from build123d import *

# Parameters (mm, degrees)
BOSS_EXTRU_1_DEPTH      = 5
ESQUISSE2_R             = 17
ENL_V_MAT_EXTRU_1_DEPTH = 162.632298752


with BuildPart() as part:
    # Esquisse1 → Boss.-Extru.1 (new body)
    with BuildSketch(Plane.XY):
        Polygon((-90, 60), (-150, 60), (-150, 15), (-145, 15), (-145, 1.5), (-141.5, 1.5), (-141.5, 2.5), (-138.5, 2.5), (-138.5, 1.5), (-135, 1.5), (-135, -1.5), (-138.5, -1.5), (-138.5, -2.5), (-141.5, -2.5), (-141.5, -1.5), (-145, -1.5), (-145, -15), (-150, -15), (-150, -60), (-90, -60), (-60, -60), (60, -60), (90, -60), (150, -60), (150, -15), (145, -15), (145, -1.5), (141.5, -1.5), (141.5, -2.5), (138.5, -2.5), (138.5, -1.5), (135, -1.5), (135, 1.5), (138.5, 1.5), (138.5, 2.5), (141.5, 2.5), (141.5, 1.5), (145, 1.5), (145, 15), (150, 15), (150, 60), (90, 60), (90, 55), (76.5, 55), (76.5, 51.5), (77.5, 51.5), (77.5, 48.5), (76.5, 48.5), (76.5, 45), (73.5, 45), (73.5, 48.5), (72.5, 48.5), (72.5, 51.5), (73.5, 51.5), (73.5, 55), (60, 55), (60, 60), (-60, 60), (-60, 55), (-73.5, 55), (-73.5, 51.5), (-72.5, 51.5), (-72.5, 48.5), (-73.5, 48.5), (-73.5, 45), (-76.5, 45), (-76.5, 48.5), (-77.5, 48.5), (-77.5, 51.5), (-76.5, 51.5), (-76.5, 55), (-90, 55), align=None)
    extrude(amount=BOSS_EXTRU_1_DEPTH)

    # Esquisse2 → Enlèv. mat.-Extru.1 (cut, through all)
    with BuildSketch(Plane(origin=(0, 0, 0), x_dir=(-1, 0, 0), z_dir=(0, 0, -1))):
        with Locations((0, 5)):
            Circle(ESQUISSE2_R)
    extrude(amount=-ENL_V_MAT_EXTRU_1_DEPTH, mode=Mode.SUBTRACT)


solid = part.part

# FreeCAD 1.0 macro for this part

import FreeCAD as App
import Part
import Sketcher
Q = App.Units.Quantity

doc = App.newDocument("Part")
body = doc.addObject("PartDesign::Body", "Body")

# Sketch on XY plane
sketch1 = body.newObject("Sketcher::SketchObject", "Sketch")
sketch1.AttachmentSupport = (doc.getObject("XY_Plane"), [""])
sketch1.MapMode = "FlatFace"
sketch1.addGeometry([
    Part.LineSegment(App.Vector(-90, 60, 0), App.Vector(-150, 60, 0)),  # 0
    Part.LineSegment(App.Vector(-150, 60, 0), App.Vector(-150, 15, 0)),  # 1
    Part.LineSegment(App.Vector(-150, 15, 0), App.Vector(-145, 15, 0)),  # 2
    Part.LineSegment(App.Vector(-145, 15, 0), App.Vector(-145, 1.5, 0)),  # 3
    Part.LineSegment(App.Vector(-145, 1.5, 0), App.Vector(-141.5, 1.5, 0)),  # 4
    Part.LineSegment(App.Vector(-141.5, 1.5, 0), App.Vector(-141.5, 2.5, 0)),  # 5
    Part.LineSegment(App.Vector(-141.5, 2.5, 0), App.Vector(-138.5, 2.5, 0)),  # 6
    Part.LineSegment(App.Vector(-138.5, 2.5, 0), App.Vector(-138.5, 1.5, 0)),  # 7
    Part.LineSegment(App.Vector(-138.5, 1.5, 0), App.Vector(-135, 1.5, 0)),  # 8
    Part.LineSegment(App.Vector(-135, 1.5, 0), App.Vector(-135, -1.5, 0)),  # 9
    Part.LineSegment(App.Vector(-135, -1.5, 0), App.Vector(-138.5, -1.5, 0)),  # 10
    Part.LineSegment(App.Vector(-138.5, -1.5, 0), App.Vector(-138.5, -2.5, 0)),  # 11
    Part.LineSegment(App.Vector(-138.5, -2.5, 0), App.Vector(-141.5, -2.5, 0)),  # 12
    Part.LineSegment(App.Vector(-141.5, -2.5, 0), App.Vector(-141.5, -1.5, 0)),  # 13
    Part.LineSegment(App.Vector(-141.5, -1.5, 0), App.Vector(-145, -1.5, 0)),  # 14
    Part.LineSegment(App.Vector(-145, -1.5, 0), App.Vector(-145, -15, 0)),  # 15
    Part.LineSegment(App.Vector(-145, -15, 0), App.Vector(-150, -15, 0)),  # 16
    Part.LineSegment(App.Vector(-150, -15, 0), App.Vector(-150, -60, 0)),  # 17
    Part.LineSegment(App.Vector(-150, -60, 0), App.Vector(150, -60, 0)),  # 18
    Part.LineSegment(App.Vector(150, -60, 0), App.Vector(150, -15, 0)),  # 19
    Part.LineSegment(App.Vector(150, -15, 0), App.Vector(145, -15, 0)),  # 20
    Part.LineSegment(App.Vector(145, -15, 0), App.Vector(145, -1.5, 0)),  # 21
    Part.LineSegment(App.Vector(145, -1.5, 0), App.Vector(141.5, -1.5, 0)),  # 22
    Part.LineSegment(App.Vector(141.5, -1.5, 0), App.Vector(141.5, -2.5, 0)),  # 23
    Part.LineSegment(App.Vector(141.5, -2.5, 0), App.Vector(138.5, -2.5, 0)),  # 24
    Part.LineSegment(App.Vector(138.5, -2.5, 0), App.Vector(138.5, -1.5, 0)),  # 25
    Part.LineSegment(App.Vector(138.5, -1.5, 0), App.Vector(135, -1.5, 0)),  # 26
    Part.LineSegment(App.Vector(135, -1.5, 0), App.Vector(135, 1.5, 0)),  # 27
    Part.LineSegment(App.Vector(135, 1.5, 0), App.Vector(138.5, 1.5, 0)),  # 28
    Part.LineSegment(App.Vector(138.5, 1.5, 0), App.Vector(138.5, 2.5, 0)),  # 29
    Part.LineSegment(App.Vector(138.5, 2.5, 0), App.Vector(141.5, 2.5, 0)),  # 30
    Part.LineSegment(App.Vector(141.5, 2.5, 0), App.Vector(141.5, 1.5, 0)),  # 31
    Part.LineSegment(App.Vector(141.5, 1.5, 0), App.Vector(145, 1.5, 0)),  # 32
    Part.LineSegment(App.Vector(145, 1.5, 0), App.Vector(145, 15, 0)),  # 33
    Part.LineSegment(App.Vector(145, 15, 0), App.Vector(150, 15, 0)),  # 34
    Part.LineSegment(App.Vector(150, 15, 0), App.Vector(150, 60, 0)),  # 35
    Part.LineSegment(App.Vector(150, 60, 0), App.Vector(90, 60, 0)),  # 36
    Part.LineSegment(App.Vector(90, 60, 0), App.Vector(90, 55, 0)),  # 37
    Part.LineSegment(App.Vector(90, 55, 0), App.Vector(76.5, 55, 0)),  # 38
    Part.LineSegment(App.Vector(76.5, 55, 0), App.Vector(76.5, 51.5, 0)),  # 39
    Part.LineSegment(App.Vector(76.5, 51.5, 0), App.Vector(77.5, 51.5, 0)),  # 40
    Part.LineSegment(App.Vector(77.5, 51.5, 0), App.Vector(77.5, 48.5, 0)),  # 41
    Part.LineSegment(App.Vector(77.5, 48.5, 0), App.Vector(76.5, 48.5, 0)),  # 42
    Part.LineSegment(App.Vector(76.5, 48.5, 0), App.Vector(76.5, 45, 0)),  # 43
    Part.LineSegment(App.Vector(76.5, 45, 0), App.Vector(73.5, 45, 0)),  # 44
    Part.LineSegment(App.Vector(73.5, 45, 0), App.Vector(73.5, 48.5, 0)),  # 45
    Part.LineSegment(App.Vector(73.5, 48.5, 0), App.Vector(72.5, 48.5, 0)),  # 46
    Part.LineSegment(App.Vector(72.5, 48.5, 0), App.Vector(72.5, 51.5, 0)),  # 47
    Part.LineSegment(App.Vector(72.5, 51.5, 0), App.Vector(73.5, 51.5, 0)),  # 48
    Part.LineSegment(App.Vector(73.5, 51.5, 0), App.Vector(73.5, 55, 0)),  # 49
    Part.LineSegment(App.Vector(73.5, 55, 0), App.Vector(60, 55, 0)),  # 50
    Part.LineSegment(App.Vector(60, 55, 0), App.Vector(60, 60, 0)),  # 51
    Part.LineSegment(App.Vector(60, 60, 0), App.Vector(-60, 60, 0)),  # 52
    Part.LineSegment(App.Vector(-60, 60, 0), App.Vector(-60, 55, 0)),  # 53
    Part.LineSegment(App.Vector(-60, 55, 0), App.Vector(-73.5, 55, 0)),  # 54
    Part.LineSegment(App.Vector(-73.5, 55, 0), App.Vector(-73.5, 51.5, 0)),  # 55
    Part.LineSegment(App.Vector(-73.5, 51.5, 0), App.Vector(-72.5, 51.5, 0)),  # 56
    Part.LineSegment(App.Vector(-72.5, 51.5, 0), App.Vector(-72.5, 48.5, 0)),  # 57
    Part.LineSegment(App.Vector(-72.5, 48.5, 0), App.Vector(-73.5, 48.5, 0)),  # 58
    Part.LineSegment(App.Vector(-73.5, 48.5, 0), App.Vector(-73.5, 45, 0)),  # 59
    Part.LineSegment(App.Vector(-73.5, 45, 0), App.Vector(-76.5, 45, 0)),  # 60
    Part.LineSegment(App.Vector(-76.5, 45, 0), App.Vector(-76.5, 48.5, 0)),  # 61
    Part.LineSegment(App.Vector(-76.5, 48.5, 0), App.Vector(-77.5, 48.5, 0)),  # 62
    Part.LineSegment(App.Vector(-77.5, 48.5, 0), App.Vector(-77.5, 51.5, 0)),  # 63
    Part.LineSegment(App.Vector(-77.5, 51.5, 0), App.Vector(-76.5, 51.5, 0)),  # 64
    Part.LineSegment(App.Vector(-76.5, 51.5, 0), App.Vector(-76.5, 55, 0)),  # 65
    Part.LineSegment(App.Vector(-76.5, 55, 0), App.Vector(-90, 55, 0)),  # 66
    Part.LineSegment(App.Vector(-90, 55, 0), App.Vector(-90, 60, 0)),  # 67
], False)
sketch1.addConstraint([
    Sketcher.Constraint("Coincident", 0, 2, 1, 1),
    Sketcher.Constraint("Coincident", 1, 2, 2, 1),
    Sketcher.Constraint("Coincident", 2, 2, 3, 1),
    Sketcher.Constraint("Coincident", 3, 2, 4, 1),
    Sketcher.Constraint("Coincident", 4, 2, 5, 1),
    Sketcher.Constraint("Coincident", 5, 2, 6, 1),
    Sketcher.Constraint("Coincident", 6, 2, 7, 1),
    Sketcher.Constraint("Coincident", 7, 2, 8, 1),
    Sketcher.Constraint("Coincident", 8, 2, 9, 1),
    Sketcher.Constraint("Coincident", 9, 2, 10, 1),
    Sketcher.Constraint("Coincident", 10, 2, 11, 1),
    Sketcher.Constraint("Coincident", 11, 2, 12, 1),
    Sketcher.Constraint("Coincident", 12, 2, 13, 1),
    Sketcher.Constraint("Coincident", 13, 2, 14, 1),
    Sketcher.Constraint("Coincident", 14, 2, 15, 1),
    Sketcher.Constraint("Coincident", 15, 2, 16, 1),
    Sketcher.Constraint("Coincident", 16, 2, 17, 1),
    Sketcher.Constraint("Coincident", 17, 2, 18, 1),
    Sketcher.Constraint("Coincident", 18, 2, 19, 1),
    Sketcher.Constraint("Coincident", 19, 2, 20, 1),
    Sketcher.Constraint("Coincident", 20, 2, 21, 1),
    Sketcher.Constraint("Coincident", 21, 2, 22, 1),
    Sketcher.Constraint("Coincident", 22, 2, 23, 1),
    Sketcher.Constraint("Coincident", 23, 2, 24, 1),
    Sketcher.Constraint("Coincident", 24, 2, 25, 1),
    Sketcher.Constraint("Coincident", 25, 2, 26, 1),
    Sketcher.Constraint("Coincident", 26, 2, 27, 1),
    Sketcher.Constraint("Coincident", 27, 2, 28, 1),
    Sketcher.Constraint("Coincident", 28, 2, 29, 1),
    Sketcher.Constraint("Coincident", 29, 2, 30, 1),
    Sketcher.Constraint("Coincident", 30, 2, 31, 1),
    Sketcher.Constraint("Coincident", 31, 2, 32, 1),
    Sketcher.Constraint("Coincident", 32, 2, 33, 1),
    Sketcher.Constraint("Coincident", 33, 2, 34, 1),
    Sketcher.Constraint("Coincident", 34, 2, 35, 1),
    Sketcher.Constraint("Coincident", 35, 2, 36, 1),
    Sketcher.Constraint("Coincident", 36, 2, 37, 1),
    Sketcher.Constraint("Coincident", 37, 2, 38, 1),
    Sketcher.Constraint("Coincident", 38, 2, 39, 1),
    Sketcher.Constraint("Coincident", 39, 2, 40, 1),
    Sketcher.Constraint("Coincident", 40, 2, 41, 1),
    Sketcher.Constraint("Coincident", 41, 2, 42, 1),
    Sketcher.Constraint("Coincident", 42, 2, 43, 1),
    Sketcher.Constraint("Coincident", 43, 2, 44, 1),
    Sketcher.Constraint("Coincident", 44, 2, 45, 1),
    Sketcher.Constraint("Coincident", 45, 2, 46, 1),
    Sketcher.Constraint("Coincident", 46, 2, 47, 1),
    Sketcher.Constraint("Coincident", 47, 2, 48, 1),
    Sketcher.Constraint("Coincident", 48, 2, 49, 1),
    Sketcher.Constraint("Coincident", 49, 2, 50, 1),
    Sketcher.Constraint("Coincident", 50, 2, 51, 1),
    Sketcher.Constraint("Coincident", 51, 2, 52, 1),
    Sketcher.Constraint("Coincident", 52, 2, 53, 1),
    Sketcher.Constraint("Coincident", 53, 2, 54, 1),
    Sketcher.Constraint("Coincident", 54, 2, 55, 1),
    Sketcher.Constraint("Coincident", 55, 2, 56, 1),
    Sketcher.Constraint("Coincident", 56, 2, 57, 1),
    Sketcher.Constraint("Coincident", 57, 2, 58, 1),
    Sketcher.Constraint("Coincident", 58, 2, 59, 1),
    Sketcher.Constraint("Coincident", 59, 2, 60, 1),
    Sketcher.Constraint("Coincident", 60, 2, 61, 1),
    Sketcher.Constraint("Coincident", 61, 2, 62, 1),
    Sketcher.Constraint("Coincident", 62, 2, 63, 1),
    Sketcher.Constraint("Coincident", 63, 2, 64, 1),
    Sketcher.Constraint("Coincident", 64, 2, 65, 1),
    Sketcher.Constraint("Coincident", 65, 2, 66, 1),
    Sketcher.Constraint("Coincident", 66, 2, 67, 1),
    Sketcher.Constraint("Coincident", 67, 2, 0, 1),
    Sketcher.Constraint("Horizontal", 0),
    Sketcher.Constraint("Vertical", 1),
    Sketcher.Constraint("Horizontal", 2),
    Sketcher.Constraint("Vertical", 3),
    Sketcher.Constraint("Horizontal", 4),
    Sketcher.Constraint("Vertical", 5),
    Sketcher.Constraint("Horizontal", 6),
    Sketcher.Constraint("Vertical", 7),
    Sketcher.Constraint("Horizontal", 8),
    Sketcher.Constraint("Vertical", 9),
    Sketcher.Constraint("Horizontal", 10),
    Sketcher.Constraint("Vertical", 11),
    Sketcher.Constraint("Horizontal", 12),
    Sketcher.Constraint("Vertical", 13),
    Sketcher.Constraint("Horizontal", 14),
    Sketcher.Constraint("Vertical", 15),
    Sketcher.Constraint("Horizontal", 16),
    Sketcher.Constraint("Vertical", 17),
    Sketcher.Constraint("Horizontal", 18),
    Sketcher.Constraint("Vertical", 19),
    Sketcher.Constraint("Horizontal", 20),
    Sketcher.Constraint("Vertical", 21),
    Sketcher.Constraint("Horizontal", 22),
    Sketcher.Constraint("Vertical", 23),
    Sketcher.Constraint("Horizontal", 24),
    Sketcher.Constraint("Vertical", 25),
    Sketcher.Constraint("Horizontal", 26),
    Sketcher.Constraint("Vertical", 27),
    Sketcher.Constraint("Horizontal", 28),
    Sketcher.Constraint("Vertical", 29),
    Sketcher.Constraint("Horizontal", 30),
    Sketcher.Constraint("Vertical", 31),
    Sketcher.Constraint("Horizontal", 32),
    Sketcher.Constraint("Vertical", 33),
    Sketcher.Constraint("Horizontal", 34),
    Sketcher.Constraint("Vertical", 35),
    Sketcher.Constraint("Horizontal", 36),
    Sketcher.Constraint("Vertical", 37),
    Sketcher.Constraint("Horizontal", 38),
    Sketcher.Constraint("Vertical", 39),
    Sketcher.Constraint("Horizontal", 40),
    Sketcher.Constraint("Vertical", 41),
    Sketcher.Constraint("Horizontal", 42),
    Sketcher.Constraint("Vertical", 43),
    Sketcher.Constraint("Horizontal", 44),
    Sketcher.Constraint("Vertical", 45),
    Sketcher.Constraint("Horizontal", 46),
    Sketcher.Constraint("Vertical", 47),
    Sketcher.Constraint("Horizontal", 48),
    Sketcher.Constraint("Vertical", 49),
    Sketcher.Constraint("Horizontal", 50),
    Sketcher.Constraint("Vertical", 51),
    Sketcher.Constraint("Horizontal", 52),
    Sketcher.Constraint("Vertical", 53),
    Sketcher.Constraint("Horizontal", 54),
    Sketcher.Constraint("Vertical", 55),
    Sketcher.Constraint("Horizontal", 56),
    Sketcher.Constraint("Vertical", 57),
    Sketcher.Constraint("Horizontal", 58),
    Sketcher.Constraint("Vertical", 59),
    Sketcher.Constraint("Horizontal", 60),
    Sketcher.Constraint("Vertical", 61),
    Sketcher.Constraint("Horizontal", 62),
    Sketcher.Constraint("Vertical", 63),
    Sketcher.Constraint("Horizontal", 64),
    Sketcher.Constraint("Vertical", 65),
    Sketcher.Constraint("Horizontal", 66),
    Sketcher.Constraint("Vertical", 67),
    Sketcher.Constraint("Symmetric", 0, 2, 18, 2, -1, 1),
    Sketcher.Constraint("Symmetric", 2, 2, 20, 2, -1, 1),
    Sketcher.Constraint("Symmetric", 4, 2, 22, 2, -1, 1),
    Sketcher.Constraint("Symmetric", 6, 2, 24, 2, -1, 1),
    Sketcher.Constraint("Symmetric", 8, 2, 26, 2, -1, 1),
    Sketcher.Constraint("Symmetric", 10, 2, 28, 2, -1, 1),
    Sketcher.Constraint("Symmetric", 12, 2, 30, 2, -1, 1),
    Sketcher.Constraint("Symmetric", 14, 2, 32, 2, -1, 1),
    Sketcher.Constraint("Symmetric", 16, 2, 34, 2, -1, 1),
    Sketcher.Constraint("Symmetric", 16, 2, 19, 2, -2),
    Sketcher.Constraint("Symmetric", 14, 2, 21, 2, -2),
    Sketcher.Constraint("Symmetric", 12, 2, 23, 2, -2),
    Sketcher.Constraint("Symmetric", 10, 2, 25, 2, -2),
    Sketcher.Constraint("Symmetric", 50, 2, 53, 2, -2),
    Sketcher.Constraint("Symmetric", 48, 2, 55, 2, -2),
    Sketcher.Constraint("Symmetric", 46, 2, 57, 2, -2),
    Sketcher.Constraint("Symmetric", 44, 2, 59, 2, -2),
    Sketcher.Constraint("Symmetric", 42, 2, 61, 2, -2),
    Sketcher.Constraint("Symmetric", 40, 2, 63, 2, -2),
    Sketcher.Constraint("Symmetric", 38, 2, 65, 2, -2),
    Sketcher.Constraint("Symmetric", 36, 2, 67, 2, -2),
    Sketcher.Constraint("Horizontal", 4, 2, 7, 2),
    Sketcher.Constraint("Horizontal", 42, 2, 45, 2),
    Sketcher.Constraint("Horizontal", 40, 2, 47, 2),
    Sketcher.Constraint("Horizontal", 38, 2, 49, 2),
    Sketcher.Constraint("Horizontal", 36, 2, 51, 2),
    Sketcher.Constraint("Vertical", 39, 2, 42, 2),
    Sketcher.Constraint("Vertical", 45, 2, 48, 2),
    Sketcher.Constraint("Equal", 4, 8),
    Sketcher.Constraint("Equal", 30, 44),
    Sketcher.Constraint("Equal", 42, 46),
    Sketcher.Constraint("Equal", 38, 50),
    Sketcher.Constraint("Equal", 66, 3),
    Sketcher.Constraint("Equal", 64, 5),
    Sketcher.Constraint("Equal", 60, 9),
    Sketcher.Constraint("Equal", 34, 37),
    Sketcher.Constraint("Equal", 32, 39),
    Sketcher.Constraint("Equal", 27, 41),
    Sketcher.Constraint("Equal", 39, 43),
    Sketcher.Constraint("DistanceX", 0, 2, 0, 1, Q("60 mm")),
    Sketcher.Constraint("DistanceX", 2, 1, 2, 2, Q("5 mm")),
    Sketcher.Constraint("DistanceX", 6, 1, 6, 2, Q("3 mm")),
    Sketcher.Constraint("DistanceX", 18, 1, 18, 2, Q("300 mm")),
    Sketcher.Constraint("DistanceX", 40, 1, 40, 2, Q("1 mm")),
    Sketcher.Constraint("DistanceX", 52, 2, 52, 1, Q("120 mm")),
    Sketcher.Constraint("DistanceY", 1, 2, 1, 1, Q("45 mm")),
    Sketcher.Constraint("DistanceX", 4, 1, 4, 2, Q("3.5 mm")),
])
pad1 = body.newObject("PartDesign::Pad", "Pad")
pad1.Profile = sketch1
pad1.Length = 5

# Sketch on XY plane
sketch2 = body.newObject("Sketcher::SketchObject", "Sketch001")
sketch2.AttachmentSupport = (doc.getObject("XY_Plane"), [""])
sketch2.MapMode = "FlatFace"
sketch2.addGeometry(Part.Circle(App.Vector(0, 5, 0), App.Vector(0, 0, 1), 17), False)
sketch2.addConstraint([
    Sketcher.Constraint("PointOnObject", 0, 3, -2),
    Sketcher.Constraint("Diameter", 0, Q("34 mm")),
    Sketcher.Constraint("DistanceY", -1, 1, 0, 3, Q("5 mm")),
])
pocket1 = body.newObject("PartDesign::Pocket", "Pocket")
pocket1.Profile = sketch2
pocket1.Type = "ThroughAll"
pocket1.Reversed = True

doc.recompute()
